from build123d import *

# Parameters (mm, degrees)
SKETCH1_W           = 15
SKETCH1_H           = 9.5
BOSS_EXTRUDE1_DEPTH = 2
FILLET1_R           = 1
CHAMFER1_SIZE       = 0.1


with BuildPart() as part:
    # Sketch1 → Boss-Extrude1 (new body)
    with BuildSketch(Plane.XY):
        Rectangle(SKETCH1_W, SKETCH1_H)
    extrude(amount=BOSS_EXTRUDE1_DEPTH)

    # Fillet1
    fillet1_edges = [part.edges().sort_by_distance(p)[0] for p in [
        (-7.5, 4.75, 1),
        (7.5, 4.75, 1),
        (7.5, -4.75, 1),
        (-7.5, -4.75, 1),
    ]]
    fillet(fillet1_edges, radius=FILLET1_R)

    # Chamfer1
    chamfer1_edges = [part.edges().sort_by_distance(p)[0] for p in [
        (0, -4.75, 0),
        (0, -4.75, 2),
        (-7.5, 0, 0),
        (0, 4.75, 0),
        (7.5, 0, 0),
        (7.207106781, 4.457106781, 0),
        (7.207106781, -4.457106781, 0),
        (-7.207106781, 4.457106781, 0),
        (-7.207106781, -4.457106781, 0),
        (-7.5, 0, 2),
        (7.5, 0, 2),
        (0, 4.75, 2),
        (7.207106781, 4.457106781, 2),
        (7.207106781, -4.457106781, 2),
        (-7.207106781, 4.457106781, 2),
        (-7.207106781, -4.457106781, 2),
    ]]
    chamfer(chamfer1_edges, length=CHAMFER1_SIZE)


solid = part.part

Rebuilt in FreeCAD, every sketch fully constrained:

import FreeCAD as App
import Part
import Sketcher
Q = App.Units.Quantity


def edges_at(feature, points):
    """Names of the edges that pass closest to the given points."""
    edges = feature.Shape.Edges
    near = lambda p: min(range(len(edges)), key=lambda i: edges[i].distToShape(Part.Vertex(*p))[0])
    return sorted({f"Edge{near(p) + 1}" for p in points})

doc = App.newDocument("Part")
body = doc.addObject("PartDesign::Body", "Body")

sketch1 = doc.addObject("Sketcher::SketchObject", "Sketch")
body.addObject(sketch1)
sketch1.AttachmentSupport = (doc.XY_Plane, [""])
sketch1.MapMode = "FlatFace"
sketch1.addGeometry([
    Part.LineSegment(App.Vector(-7.5, 4.75, 0), App.Vector(-7.5, -4.75, 0)),
    Part.LineSegment(App.Vector(-7.5, -4.75, 0), App.Vector(7.5, -4.75, 0)),
    Part.LineSegment(App.Vector(7.5, -4.75, 0), App.Vector(7.5, 4.75, 0)),
    Part.LineSegment(App.Vector(7.5, 4.75, 0), App.Vector(-7.5, 4.75, 0)),
], False)
sketch1.addConstraint([
    Sketcher.Constraint("Coincident", 0, 2, 1, 1),
    Sketcher.Constraint("Coincident", 1, 2, 2, 1),
    Sketcher.Constraint("Coincident", 2, 2, 3, 1),
    Sketcher.Constraint("Coincident", 3, 2, 0, 1),
    Sketcher.Constraint("Vertical", 0),
    Sketcher.Constraint("Horizontal", 1),
    Sketcher.Constraint("Vertical", 2),
    Sketcher.Constraint("Horizontal", 3),
    Sketcher.Constraint("Symmetric", 0, 2, 2, 2, -1, 1),
    Sketcher.Constraint("DistanceX", 1, 1, 1, 2, Q("15 mm")),
    Sketcher.Constraint("DistanceY", 0, 2, 0, 1, Q("9.5 mm")),
])
pad1 = doc.addObject("PartDesign::Pad", "Pad")
body.addObject(pad1)
pad1.Profile = sketch1
pad1.Length = 2
doc.recompute()

fillet = doc.addObject("PartDesign::Fillet", "Fillet")
body.addObject(fillet)
fillet.Base = (pad1, edges_at(pad1, [
    (-7.5, 4.75, 1),
    (7.5, 4.75, 1),
    (7.5, -4.75, 1),
    (-7.5, -4.75, 1),
]))
fillet.Radius = 1
doc.recompute()

chamfer = doc.addObject("PartDesign::Chamfer", "Chamfer")
body.addObject(chamfer)
chamfer.Base = (fillet, edges_at(fillet, [
    (0, -4.75, 0),
    (0, -4.75, 2),
    (-7.5, 0, 0),
    (0, 4.75, 0),
    (7.5, 0, 0),
    (7.207, 4.457, 0),
    (7.207, -4.457, 0),
    (-7.207, 4.457, 0),
    (-7.207, -4.457, 0),
    (-7.5, 0, 2),
    (7.5, 0, 2),
    (0, 4.75, 2),
    (7.207, 4.457, 2),
    (7.207, -4.457, 2),
    (-7.207, 4.457, 2),
    (-7.207, -4.457, 2),
]))
chamfer.Size = 0.1

doc.recompute()
